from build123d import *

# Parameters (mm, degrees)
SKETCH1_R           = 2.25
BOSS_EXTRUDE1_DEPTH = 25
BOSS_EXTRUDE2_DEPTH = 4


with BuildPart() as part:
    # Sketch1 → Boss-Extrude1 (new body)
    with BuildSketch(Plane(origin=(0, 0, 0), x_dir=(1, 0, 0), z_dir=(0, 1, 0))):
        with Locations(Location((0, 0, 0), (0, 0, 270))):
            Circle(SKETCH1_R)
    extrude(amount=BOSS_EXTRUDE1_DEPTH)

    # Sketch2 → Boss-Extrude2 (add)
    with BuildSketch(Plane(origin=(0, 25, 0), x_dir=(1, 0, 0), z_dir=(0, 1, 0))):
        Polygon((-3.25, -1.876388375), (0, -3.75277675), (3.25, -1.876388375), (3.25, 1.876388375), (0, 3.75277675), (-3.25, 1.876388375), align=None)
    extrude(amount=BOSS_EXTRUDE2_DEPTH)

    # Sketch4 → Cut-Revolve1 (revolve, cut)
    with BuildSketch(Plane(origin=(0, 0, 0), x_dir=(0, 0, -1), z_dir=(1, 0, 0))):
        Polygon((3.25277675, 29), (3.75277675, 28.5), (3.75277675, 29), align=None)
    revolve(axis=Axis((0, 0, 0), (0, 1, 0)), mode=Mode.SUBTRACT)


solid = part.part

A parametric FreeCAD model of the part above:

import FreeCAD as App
import Part
import Sketcher

V = App.Vector
Q = App.Units.Quantity


def add_polygon(sketch, points):
    """Adds a closed chain of lines whose ends are joined by coincident constraints."""
    first, n = sketch.GeometryCount, len(points)
    for a, b in zip(points, points[1:] + points[:1]):
        sketch.addGeometry(Part.LineSegment(App.Vector(*a, 0), App.Vector(*b, 0)), False)
    for i in range(n):
        sketch.addConstraint(Sketcher.Constraint("Coincident", first + i, 2, first + (i + 1) % n, 1))

doc = App.newDocument("Part")
body = doc.addObject("PartDesign::Body", "Body")

# Sketch on XZ plane
sketch1 = doc.addObject("Sketcher::SketchObject", "Sketch")
body.addObject(sketch1)
sketch1.AttachmentSupport = (doc.XZ_Plane, [""])
sketch1.MapMode = "FlatFace"
sketch1.addGeometry(Part.Circle(V(0, 0, 0), V(0, 0, 1), 2.2), False)
sketch1.addConstraint([
    Sketcher.Constraint("Coincident", 0, 3, -1, 1),
    Sketcher.Constraint("Diameter", 0, Q("4.5 mm")),
])
pad1 = doc.addObject("PartDesign::Pad", "Pad")
body.addObject(pad1)
pad1.Profile = sketch1
pad1.Length = 25
pad1.Reversed = True

# Sketch on XZ plane
sketch2 = doc.addObject("Sketcher::SketchObject", "Sketch001")
body.addObject(sketch2)
sketch2.AttachmentSupport = (doc.XZ_Plane, [""])
sketch2.MapMode = "FlatFace"
sketch2.AttachmentOffset = App.Placement(V(0, 0, -25), App.Rotation())
add_polygon(sketch2, [(-3.2, 1.9), (0, 3.8), (3.2, 1.9), (3.2, -1.9), (0, -3.8), (-3.2, -1.9)])  # lines 0-5
sketch2.addConstraint([
    Sketcher.Constraint("Vertical", 2),
    Sketcher.Constraint("Vertical", 5),
    Sketcher.Constraint("Symmetric", 0, 2, 3, 2, -1, 1),
    Sketcher.Constraint("Symmetric", 1, 2, 4, 2, -1, 1),
    Sketcher.Constraint("PointOnObject", 0, 2, -2),
    Sketcher.Constraint("Parallel", 0, 3),
    Sketcher.Constraint("Horizontal", 2, 2, 4, 2),
    Sketcher.Constraint("Angle", 0, Q("30 deg")),
    Sketcher.Constraint("DistanceX", 4, 2, 2, 2, Q("6.5 mm")),
    Sketcher.Constraint("DistanceY", 2, 2, 2, 1, Q("3.752777 mm")),
])
pad2 = doc.addObject("PartDesign::Pad", "Pad001")
body.addObject(pad2)
pad2.Profile = sketch2
pad2.Length = 4
pad2.Reversed = True

# Sketch on YZ plane
sketch3 = doc.addObject("Sketcher::SketchObject", "Sketch002")
body.addObject(sketch3)
sketch3.AttachmentSupport = (doc.YZ_Plane, [""])
sketch3.MapMode = "FlatFace"
add_polygon(sketch3, [(29, -3.3), (28.5, -3.8), (29, -3.8)])  # lines 0-2
sketch3.addConstraint([
    Sketcher.Constraint("Horizontal", 1),
    Sketcher.Constraint("Vertical", 2),
    Sketcher.Constraint("Equal", 1, 2),
    Sketcher.Constraint("DistanceX", 1, 1, 1, 2, Q("0.5 mm")),
    Sketcher.Constraint("DistanceX", -1, 1, 1, 2, Q("29 mm")),
    Sketcher.Constraint("DistanceY", 0, 2, -1, 1, Q("3.752777 mm")),
])
groove = doc.addObject("PartDesign::Groove", "Groove")
body.addObject(groove)
groove.Profile = sketch3
groove.ReferenceAxis = (sketch3, ["H_Axis"])
groove.Angle = 360

doc.recompute()
